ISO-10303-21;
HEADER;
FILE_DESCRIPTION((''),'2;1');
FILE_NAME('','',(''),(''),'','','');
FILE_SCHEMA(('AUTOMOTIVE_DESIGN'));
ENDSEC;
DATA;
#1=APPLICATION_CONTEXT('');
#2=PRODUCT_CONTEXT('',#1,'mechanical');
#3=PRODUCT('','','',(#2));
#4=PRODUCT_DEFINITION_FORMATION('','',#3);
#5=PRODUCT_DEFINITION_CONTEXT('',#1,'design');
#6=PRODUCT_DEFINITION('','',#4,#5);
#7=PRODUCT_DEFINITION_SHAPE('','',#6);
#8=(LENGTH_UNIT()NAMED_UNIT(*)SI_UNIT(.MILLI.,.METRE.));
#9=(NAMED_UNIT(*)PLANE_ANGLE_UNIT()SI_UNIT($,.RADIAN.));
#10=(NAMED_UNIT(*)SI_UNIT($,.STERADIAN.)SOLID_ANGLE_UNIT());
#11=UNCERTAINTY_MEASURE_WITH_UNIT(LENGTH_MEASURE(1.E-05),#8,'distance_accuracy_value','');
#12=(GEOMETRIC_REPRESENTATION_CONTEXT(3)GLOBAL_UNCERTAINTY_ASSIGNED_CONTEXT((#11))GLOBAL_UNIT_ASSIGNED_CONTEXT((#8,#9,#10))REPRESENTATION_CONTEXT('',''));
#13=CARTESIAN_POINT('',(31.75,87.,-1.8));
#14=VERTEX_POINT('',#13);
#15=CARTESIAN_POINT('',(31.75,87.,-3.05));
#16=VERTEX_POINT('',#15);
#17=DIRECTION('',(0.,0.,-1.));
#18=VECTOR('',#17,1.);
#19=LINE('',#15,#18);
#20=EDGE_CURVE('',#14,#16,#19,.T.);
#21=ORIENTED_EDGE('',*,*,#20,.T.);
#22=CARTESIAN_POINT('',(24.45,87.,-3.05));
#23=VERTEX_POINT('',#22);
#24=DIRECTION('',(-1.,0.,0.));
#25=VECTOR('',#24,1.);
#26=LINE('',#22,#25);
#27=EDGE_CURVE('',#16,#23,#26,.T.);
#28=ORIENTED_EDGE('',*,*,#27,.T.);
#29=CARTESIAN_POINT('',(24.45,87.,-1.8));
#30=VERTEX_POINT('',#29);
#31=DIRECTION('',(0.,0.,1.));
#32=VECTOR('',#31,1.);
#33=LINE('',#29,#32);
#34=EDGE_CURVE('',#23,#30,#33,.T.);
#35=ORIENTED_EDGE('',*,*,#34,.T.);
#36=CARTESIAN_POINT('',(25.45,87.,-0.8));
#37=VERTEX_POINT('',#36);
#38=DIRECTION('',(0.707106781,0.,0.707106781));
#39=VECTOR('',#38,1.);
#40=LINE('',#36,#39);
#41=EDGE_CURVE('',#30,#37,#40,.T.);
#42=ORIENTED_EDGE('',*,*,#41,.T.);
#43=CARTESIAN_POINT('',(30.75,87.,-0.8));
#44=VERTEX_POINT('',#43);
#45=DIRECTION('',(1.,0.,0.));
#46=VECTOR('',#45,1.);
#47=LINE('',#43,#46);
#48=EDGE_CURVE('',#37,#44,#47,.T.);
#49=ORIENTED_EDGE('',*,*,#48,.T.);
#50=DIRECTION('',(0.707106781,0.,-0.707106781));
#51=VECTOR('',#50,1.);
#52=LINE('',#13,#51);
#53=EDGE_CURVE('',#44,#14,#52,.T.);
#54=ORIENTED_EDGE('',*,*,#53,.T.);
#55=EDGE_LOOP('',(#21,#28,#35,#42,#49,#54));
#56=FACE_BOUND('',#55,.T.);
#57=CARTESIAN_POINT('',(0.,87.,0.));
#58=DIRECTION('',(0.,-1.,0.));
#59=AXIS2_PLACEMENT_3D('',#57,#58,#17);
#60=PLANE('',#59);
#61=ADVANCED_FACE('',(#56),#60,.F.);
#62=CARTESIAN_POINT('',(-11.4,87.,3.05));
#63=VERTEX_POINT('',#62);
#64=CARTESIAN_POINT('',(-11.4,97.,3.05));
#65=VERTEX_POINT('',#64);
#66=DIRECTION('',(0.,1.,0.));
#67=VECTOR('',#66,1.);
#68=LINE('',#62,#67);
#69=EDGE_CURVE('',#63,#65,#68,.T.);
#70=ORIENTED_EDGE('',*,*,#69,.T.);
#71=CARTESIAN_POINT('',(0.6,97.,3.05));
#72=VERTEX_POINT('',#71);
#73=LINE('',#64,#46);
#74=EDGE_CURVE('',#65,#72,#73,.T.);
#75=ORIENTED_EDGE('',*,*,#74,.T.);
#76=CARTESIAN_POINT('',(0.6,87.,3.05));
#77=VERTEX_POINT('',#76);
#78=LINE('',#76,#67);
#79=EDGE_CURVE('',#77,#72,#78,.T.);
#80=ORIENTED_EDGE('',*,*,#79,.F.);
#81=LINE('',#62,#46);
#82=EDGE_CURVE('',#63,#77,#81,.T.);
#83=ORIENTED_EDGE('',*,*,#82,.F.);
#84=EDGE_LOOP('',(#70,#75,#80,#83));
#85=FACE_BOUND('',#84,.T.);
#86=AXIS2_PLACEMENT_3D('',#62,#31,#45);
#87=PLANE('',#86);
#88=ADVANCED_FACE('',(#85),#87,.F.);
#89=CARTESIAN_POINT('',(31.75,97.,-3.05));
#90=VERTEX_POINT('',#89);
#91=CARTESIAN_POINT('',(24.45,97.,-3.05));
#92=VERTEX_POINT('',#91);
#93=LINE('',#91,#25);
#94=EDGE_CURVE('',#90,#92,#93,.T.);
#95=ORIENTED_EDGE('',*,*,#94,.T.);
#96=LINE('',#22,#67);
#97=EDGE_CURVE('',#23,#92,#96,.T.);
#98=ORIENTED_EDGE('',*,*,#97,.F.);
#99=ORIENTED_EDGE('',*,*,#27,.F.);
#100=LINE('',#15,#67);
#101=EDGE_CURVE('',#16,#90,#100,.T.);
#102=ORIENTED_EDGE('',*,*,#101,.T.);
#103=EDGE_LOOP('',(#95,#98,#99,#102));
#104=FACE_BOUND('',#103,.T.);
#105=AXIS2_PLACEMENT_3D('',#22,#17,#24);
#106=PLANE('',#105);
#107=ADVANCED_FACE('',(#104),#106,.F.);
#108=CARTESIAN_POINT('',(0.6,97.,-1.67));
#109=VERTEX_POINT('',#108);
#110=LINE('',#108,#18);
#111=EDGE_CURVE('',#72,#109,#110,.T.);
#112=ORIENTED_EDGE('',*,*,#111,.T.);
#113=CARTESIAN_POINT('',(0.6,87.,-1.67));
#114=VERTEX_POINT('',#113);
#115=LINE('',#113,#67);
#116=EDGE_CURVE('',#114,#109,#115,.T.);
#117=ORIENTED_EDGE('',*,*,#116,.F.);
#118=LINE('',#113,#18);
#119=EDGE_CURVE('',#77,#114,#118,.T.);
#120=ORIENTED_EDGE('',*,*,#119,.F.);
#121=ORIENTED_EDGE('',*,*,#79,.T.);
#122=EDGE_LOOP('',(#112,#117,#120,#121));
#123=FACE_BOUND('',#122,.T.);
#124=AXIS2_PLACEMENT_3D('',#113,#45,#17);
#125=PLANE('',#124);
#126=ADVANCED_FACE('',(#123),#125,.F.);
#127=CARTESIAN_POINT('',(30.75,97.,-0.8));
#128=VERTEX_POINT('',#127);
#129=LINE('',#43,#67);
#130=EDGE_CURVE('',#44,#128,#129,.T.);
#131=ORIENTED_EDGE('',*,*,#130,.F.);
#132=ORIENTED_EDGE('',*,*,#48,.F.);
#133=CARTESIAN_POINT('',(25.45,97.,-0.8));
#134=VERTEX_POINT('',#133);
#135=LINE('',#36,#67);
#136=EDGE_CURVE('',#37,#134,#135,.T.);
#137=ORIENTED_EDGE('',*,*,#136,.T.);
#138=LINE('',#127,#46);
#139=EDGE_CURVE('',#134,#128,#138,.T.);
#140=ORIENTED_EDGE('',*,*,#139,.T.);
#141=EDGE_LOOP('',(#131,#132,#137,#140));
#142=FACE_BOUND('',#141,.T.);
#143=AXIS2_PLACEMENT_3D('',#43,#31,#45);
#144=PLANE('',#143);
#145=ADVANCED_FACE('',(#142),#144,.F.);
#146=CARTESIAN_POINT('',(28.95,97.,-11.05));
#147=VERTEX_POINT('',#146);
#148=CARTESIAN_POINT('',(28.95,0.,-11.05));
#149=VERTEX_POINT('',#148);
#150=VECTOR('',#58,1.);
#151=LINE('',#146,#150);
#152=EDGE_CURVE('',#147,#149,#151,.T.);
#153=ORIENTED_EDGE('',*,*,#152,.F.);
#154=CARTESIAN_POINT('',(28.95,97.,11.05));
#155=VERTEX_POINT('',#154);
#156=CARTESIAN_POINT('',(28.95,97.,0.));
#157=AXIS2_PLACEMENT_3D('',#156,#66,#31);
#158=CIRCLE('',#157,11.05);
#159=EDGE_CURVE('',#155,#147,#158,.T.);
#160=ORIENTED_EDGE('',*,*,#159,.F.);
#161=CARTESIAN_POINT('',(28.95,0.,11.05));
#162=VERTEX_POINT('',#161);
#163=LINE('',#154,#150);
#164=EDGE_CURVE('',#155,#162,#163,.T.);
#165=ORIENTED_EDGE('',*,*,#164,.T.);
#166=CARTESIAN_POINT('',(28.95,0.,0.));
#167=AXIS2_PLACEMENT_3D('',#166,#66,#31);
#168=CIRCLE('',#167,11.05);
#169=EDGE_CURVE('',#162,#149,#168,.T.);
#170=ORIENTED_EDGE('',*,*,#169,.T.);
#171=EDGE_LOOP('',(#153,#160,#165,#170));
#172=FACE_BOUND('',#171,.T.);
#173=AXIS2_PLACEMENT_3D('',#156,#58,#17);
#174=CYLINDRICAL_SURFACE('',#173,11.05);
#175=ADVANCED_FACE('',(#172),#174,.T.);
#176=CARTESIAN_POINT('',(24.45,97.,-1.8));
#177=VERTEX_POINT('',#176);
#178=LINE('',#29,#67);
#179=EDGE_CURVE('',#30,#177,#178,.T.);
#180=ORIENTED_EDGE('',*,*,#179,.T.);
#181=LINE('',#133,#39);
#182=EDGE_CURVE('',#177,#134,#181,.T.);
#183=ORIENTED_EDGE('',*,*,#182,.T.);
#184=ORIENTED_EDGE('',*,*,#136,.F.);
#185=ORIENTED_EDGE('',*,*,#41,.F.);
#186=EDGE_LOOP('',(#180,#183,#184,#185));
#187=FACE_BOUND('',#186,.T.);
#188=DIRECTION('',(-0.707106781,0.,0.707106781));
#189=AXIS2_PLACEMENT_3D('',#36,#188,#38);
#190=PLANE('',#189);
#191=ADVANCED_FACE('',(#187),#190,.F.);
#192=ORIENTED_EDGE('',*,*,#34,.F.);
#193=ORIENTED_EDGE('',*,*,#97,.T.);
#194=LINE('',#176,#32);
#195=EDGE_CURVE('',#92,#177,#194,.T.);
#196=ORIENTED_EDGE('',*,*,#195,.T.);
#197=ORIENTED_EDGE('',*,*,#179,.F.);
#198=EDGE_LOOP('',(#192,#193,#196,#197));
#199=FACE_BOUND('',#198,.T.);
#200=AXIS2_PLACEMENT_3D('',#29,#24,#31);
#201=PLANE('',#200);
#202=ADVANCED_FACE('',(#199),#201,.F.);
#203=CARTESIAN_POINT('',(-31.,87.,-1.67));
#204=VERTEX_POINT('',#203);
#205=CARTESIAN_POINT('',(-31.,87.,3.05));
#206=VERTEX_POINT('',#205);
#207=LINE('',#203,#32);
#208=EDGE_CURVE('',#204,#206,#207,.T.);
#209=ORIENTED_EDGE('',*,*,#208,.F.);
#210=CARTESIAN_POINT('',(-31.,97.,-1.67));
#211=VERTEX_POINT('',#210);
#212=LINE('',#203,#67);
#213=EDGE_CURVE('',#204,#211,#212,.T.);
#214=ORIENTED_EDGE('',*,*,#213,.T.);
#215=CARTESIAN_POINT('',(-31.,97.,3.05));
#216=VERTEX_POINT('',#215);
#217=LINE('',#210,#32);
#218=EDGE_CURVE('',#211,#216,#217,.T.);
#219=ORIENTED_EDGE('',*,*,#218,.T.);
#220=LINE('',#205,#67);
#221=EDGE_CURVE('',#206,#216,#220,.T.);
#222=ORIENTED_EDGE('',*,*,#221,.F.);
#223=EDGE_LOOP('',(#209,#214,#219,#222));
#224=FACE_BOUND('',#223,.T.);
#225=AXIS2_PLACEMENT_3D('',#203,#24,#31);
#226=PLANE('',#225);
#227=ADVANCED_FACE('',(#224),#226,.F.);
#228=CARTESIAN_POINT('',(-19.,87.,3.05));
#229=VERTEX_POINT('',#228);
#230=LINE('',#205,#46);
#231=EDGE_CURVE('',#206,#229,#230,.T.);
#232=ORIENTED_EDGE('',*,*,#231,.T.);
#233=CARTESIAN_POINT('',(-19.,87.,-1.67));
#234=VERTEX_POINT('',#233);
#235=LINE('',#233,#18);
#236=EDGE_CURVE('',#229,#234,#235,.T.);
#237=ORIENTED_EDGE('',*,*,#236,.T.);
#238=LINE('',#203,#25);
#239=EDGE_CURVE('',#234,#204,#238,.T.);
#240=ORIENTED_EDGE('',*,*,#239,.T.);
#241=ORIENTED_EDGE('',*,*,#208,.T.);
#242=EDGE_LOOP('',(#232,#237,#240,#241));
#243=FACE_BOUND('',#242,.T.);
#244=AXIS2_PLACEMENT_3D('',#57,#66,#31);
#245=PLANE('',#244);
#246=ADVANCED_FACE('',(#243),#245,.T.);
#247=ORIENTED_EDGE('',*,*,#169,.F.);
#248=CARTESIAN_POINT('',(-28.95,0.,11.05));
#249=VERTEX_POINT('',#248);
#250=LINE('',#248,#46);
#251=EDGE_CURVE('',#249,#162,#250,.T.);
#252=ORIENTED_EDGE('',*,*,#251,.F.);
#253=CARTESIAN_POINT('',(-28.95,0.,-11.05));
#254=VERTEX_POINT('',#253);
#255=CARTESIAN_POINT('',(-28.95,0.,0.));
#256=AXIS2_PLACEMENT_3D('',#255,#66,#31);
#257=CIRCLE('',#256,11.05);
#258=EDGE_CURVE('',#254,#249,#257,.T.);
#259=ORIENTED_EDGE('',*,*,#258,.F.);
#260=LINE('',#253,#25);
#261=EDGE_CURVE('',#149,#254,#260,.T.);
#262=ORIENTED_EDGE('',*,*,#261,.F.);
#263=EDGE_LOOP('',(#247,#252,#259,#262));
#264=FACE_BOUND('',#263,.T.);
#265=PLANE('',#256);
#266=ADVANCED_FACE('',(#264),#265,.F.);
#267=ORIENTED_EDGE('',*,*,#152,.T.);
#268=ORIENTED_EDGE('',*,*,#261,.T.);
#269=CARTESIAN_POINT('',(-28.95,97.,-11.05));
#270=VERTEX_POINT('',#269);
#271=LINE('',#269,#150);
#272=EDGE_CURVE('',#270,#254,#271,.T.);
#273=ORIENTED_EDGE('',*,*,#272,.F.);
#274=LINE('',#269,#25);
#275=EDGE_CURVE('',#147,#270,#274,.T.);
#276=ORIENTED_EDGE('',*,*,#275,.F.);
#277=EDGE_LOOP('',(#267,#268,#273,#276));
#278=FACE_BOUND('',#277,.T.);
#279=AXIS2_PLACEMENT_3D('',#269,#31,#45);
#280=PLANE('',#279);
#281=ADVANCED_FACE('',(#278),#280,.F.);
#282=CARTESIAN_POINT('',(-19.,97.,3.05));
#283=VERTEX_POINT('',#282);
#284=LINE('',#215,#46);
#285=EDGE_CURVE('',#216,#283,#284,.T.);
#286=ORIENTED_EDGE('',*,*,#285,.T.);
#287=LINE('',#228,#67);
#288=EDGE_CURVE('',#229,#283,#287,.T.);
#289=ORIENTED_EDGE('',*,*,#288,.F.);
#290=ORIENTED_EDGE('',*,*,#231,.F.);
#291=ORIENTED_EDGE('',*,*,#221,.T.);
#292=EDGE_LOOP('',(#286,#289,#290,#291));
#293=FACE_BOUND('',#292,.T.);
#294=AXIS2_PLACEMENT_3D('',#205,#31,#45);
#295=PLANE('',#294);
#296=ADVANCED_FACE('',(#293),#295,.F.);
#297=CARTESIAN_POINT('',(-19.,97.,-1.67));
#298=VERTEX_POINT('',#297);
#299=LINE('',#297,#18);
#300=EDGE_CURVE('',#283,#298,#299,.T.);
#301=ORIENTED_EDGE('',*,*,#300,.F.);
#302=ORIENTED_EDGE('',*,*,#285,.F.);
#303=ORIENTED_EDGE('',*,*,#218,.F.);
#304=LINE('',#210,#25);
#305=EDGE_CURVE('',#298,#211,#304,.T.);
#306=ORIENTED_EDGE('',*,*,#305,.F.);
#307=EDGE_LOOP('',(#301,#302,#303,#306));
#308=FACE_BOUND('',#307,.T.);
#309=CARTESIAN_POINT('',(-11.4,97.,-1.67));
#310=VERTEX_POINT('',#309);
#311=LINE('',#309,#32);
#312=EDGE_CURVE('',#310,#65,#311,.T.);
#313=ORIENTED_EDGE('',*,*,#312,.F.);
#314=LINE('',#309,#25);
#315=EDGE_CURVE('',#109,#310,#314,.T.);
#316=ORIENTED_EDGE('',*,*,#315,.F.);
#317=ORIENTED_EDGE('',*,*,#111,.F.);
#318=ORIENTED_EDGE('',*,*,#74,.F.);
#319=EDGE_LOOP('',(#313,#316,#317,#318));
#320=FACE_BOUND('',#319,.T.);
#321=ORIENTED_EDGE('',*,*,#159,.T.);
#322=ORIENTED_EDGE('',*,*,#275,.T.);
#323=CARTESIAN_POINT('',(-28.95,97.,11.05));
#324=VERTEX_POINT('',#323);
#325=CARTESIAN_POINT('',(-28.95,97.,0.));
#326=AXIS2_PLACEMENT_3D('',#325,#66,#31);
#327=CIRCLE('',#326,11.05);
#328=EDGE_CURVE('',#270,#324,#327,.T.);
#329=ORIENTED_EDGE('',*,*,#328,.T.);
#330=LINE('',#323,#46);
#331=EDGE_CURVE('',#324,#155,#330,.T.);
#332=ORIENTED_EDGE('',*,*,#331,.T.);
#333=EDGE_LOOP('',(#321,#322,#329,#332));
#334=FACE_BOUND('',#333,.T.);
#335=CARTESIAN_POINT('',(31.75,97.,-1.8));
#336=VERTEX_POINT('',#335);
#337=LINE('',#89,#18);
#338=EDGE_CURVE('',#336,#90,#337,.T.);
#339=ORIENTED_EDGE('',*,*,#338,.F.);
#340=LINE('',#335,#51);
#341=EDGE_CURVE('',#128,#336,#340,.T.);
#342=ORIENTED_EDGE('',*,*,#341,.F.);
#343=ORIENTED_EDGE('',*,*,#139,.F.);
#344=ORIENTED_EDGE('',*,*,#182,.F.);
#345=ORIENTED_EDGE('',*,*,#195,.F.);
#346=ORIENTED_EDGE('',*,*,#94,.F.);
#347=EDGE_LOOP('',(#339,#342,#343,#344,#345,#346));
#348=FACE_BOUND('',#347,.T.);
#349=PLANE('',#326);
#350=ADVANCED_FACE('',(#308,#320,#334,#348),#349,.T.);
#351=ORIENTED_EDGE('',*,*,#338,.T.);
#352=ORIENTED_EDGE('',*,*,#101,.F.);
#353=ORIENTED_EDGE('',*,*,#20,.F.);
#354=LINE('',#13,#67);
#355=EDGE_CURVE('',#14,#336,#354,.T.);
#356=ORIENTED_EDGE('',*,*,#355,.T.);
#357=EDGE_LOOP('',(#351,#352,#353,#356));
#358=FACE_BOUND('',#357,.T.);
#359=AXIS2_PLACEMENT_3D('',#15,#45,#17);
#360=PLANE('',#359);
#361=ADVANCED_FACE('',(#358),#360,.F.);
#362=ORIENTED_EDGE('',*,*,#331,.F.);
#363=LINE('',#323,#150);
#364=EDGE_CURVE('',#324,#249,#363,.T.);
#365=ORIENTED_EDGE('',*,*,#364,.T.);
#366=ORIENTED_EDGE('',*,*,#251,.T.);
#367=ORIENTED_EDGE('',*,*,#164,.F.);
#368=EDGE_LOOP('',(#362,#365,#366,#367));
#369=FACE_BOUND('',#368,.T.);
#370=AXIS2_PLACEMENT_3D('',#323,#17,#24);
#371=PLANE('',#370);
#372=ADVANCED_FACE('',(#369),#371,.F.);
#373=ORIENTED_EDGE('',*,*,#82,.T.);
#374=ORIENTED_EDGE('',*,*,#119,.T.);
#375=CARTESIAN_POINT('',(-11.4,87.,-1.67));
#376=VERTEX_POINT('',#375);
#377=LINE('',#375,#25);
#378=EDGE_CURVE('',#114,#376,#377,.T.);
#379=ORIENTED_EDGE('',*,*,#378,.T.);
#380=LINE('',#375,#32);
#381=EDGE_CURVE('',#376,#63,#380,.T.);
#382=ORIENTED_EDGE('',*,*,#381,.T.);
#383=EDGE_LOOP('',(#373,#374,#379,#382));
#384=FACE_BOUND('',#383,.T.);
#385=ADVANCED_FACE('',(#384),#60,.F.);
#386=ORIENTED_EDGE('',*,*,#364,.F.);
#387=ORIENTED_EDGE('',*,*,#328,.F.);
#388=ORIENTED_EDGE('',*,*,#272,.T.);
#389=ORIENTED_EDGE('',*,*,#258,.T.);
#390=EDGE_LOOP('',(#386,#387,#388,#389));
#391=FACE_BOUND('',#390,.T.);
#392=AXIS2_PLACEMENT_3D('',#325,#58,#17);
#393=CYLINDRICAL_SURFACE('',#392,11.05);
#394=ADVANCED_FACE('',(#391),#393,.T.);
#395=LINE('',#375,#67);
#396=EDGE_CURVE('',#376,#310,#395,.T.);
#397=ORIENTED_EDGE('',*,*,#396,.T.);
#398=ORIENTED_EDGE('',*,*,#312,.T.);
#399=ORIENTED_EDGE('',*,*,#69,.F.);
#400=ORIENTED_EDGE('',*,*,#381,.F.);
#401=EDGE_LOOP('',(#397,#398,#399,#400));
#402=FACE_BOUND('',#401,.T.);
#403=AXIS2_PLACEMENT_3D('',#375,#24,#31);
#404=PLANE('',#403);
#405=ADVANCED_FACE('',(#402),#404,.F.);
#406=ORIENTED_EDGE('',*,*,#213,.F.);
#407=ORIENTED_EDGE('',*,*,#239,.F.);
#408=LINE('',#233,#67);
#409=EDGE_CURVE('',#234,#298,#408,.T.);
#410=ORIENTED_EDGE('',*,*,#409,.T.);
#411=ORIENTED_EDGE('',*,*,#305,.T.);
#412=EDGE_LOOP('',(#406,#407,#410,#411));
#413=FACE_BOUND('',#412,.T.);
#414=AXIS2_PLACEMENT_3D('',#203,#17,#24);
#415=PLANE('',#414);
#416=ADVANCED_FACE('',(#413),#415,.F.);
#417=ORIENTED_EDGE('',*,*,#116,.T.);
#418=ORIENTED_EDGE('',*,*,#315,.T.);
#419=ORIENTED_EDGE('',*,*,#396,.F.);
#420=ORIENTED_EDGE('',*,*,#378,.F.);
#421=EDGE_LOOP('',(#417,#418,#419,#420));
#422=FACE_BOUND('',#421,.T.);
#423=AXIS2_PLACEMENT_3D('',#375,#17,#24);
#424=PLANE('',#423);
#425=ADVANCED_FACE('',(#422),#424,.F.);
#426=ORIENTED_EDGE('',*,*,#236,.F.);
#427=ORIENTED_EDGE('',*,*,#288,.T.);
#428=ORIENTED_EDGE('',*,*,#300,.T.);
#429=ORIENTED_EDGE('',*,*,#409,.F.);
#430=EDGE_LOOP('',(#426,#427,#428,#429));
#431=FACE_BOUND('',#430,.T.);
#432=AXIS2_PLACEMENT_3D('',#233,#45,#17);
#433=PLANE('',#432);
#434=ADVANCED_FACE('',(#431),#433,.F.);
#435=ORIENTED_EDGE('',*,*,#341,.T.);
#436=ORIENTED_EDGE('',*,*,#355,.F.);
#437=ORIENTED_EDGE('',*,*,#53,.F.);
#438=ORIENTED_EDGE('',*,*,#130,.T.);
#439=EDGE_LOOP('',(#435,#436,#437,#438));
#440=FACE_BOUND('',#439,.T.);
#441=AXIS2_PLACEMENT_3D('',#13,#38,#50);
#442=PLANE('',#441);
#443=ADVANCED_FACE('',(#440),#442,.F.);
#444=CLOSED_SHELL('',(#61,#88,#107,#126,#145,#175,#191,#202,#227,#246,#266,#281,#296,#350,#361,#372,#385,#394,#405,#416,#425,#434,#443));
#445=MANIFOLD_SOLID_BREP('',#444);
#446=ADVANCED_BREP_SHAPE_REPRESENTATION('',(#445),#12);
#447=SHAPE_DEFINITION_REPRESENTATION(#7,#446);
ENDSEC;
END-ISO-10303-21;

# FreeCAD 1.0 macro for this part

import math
import FreeCAD as App
import Part
import Sketcher
Q = App.Units.Quantity


def add_polygon(sketch, points):
    """Adds a closed chain of lines whose ends are joined by coincident constraints."""
    first, n = sketch.GeometryCount, len(points)
    for a, b in zip(points, points[1:] + points[:1]):
        sketch.addGeometry(Part.LineSegment(App.Vector(*a, 0), App.Vector(*b, 0)), False)
    for i in range(n):
        sketch.addConstraint(Sketcher.Constraint("Coincident", first + i, 2, first + (i + 1) % n, 1))

doc = App.newDocument("Part")
body = doc.addObject("PartDesign::Body", "Body")

sketch1 = doc.addObject("Sketcher::SketchObject", "Sketch")
body.addObject(sketch1)
sketch1.AttachmentSupport = (doc.XZ_Plane, [""])
sketch1.MapMode = "FlatFace"
sketch1.addGeometry([
    Part.LineSegment(App.Vector(29, -11, 0), App.Vector(-29, -11, 0)),
    Part.ArcOfCircle(Part.Circle(App.Vector(-29, 0, 0), App.Vector(0, 0, 1), 11), math.radians(90), math.radians(270)),
    Part.LineSegment(App.Vector(-29, 11, 0), App.Vector(29, 11, 0)),
    Part.ArcOfCircle(Part.Circle(App.Vector(29, 0, 0), App.Vector(0, 0, 1), 11), math.radians(-90), math.radians(90)),
], False)
sketch1.addConstraint([
    Sketcher.Constraint("Tangent", 0, 2, 1, 2),
    Sketcher.Constraint("Tangent", 1, 1, 2, 1),
    Sketcher.Constraint("Tangent", 2, 2, 3, 2),
    Sketcher.Constraint("Tangent", 3, 1, 0, 1),
    Sketcher.Constraint("Horizontal", 0),
    Sketcher.Constraint("Horizontal", 2),
    Sketcher.Constraint("Symmetric", 1, 3, 3, 3, -1, 1),
    Sketcher.Constraint("Radius", 1, Q("11.05 mm")),
    Sketcher.Constraint("DistanceX", 0, 2, 0, 1, Q("57.9 mm")),
])
pad1 = doc.addObject("PartDesign::Pad", "Pad")
body.addObject(pad1)
pad1.Profile = sketch1
pad1.Length = 97
pad1.Reversed = True

sketch2 = doc.addObject("Sketcher::SketchObject", "Sketch001")
body.addObject(sketch2)
sketch2.AttachmentSupport = (doc.XZ_Plane, [""])
sketch2.MapMode = "FlatFace"
sketch2.AttachmentOffset = App.Placement(App.Vector(0, 0, -97), App.Rotation())
add_polygon(sketch2, [(-31, -1.7), (-31, 3), (-19, 3), (-19, -1.7)])
add_polygon(sketch2, [(-11.4, -1.7), (-11.4, 3), (0.6, 3), (0.6, -1.7)])
add_polygon(sketch2, [(24.4, -1.8), (25.4, -0.8), (30.8, -0.8), (31.8, -1.8), (31.8, -3), (24.4, -3)])
sketch2.addConstraint([
    Sketcher.Constraint("Vertical", 0),
    Sketcher.Constraint("Horizontal", 1),
    Sketcher.Constraint("Vertical", 2),
    Sketcher.Constraint("Horizontal", 3),
    Sketcher.Constraint("Vertical", 4),
    Sketcher.Constraint("Horizontal", 5),
    Sketcher.Constraint("Vertical", 6),
    Sketcher.Constraint("Horizontal", 7),
    Sketcher.Constraint("Horizontal", 9),
    Sketcher.Constraint("Vertical", 11),
    Sketcher.Constraint("Horizontal", 12),
    Sketcher.Constraint("Vertical", 13),
    Sketcher.Constraint("Perpendicular", 8, 10),
    Sketcher.Constraint("Horizontal", 1, 2, 4, 2),
    Sketcher.Constraint("Horizontal", 3, 2, 6, 2),
    Sketcher.Constraint("Horizontal", 10, 2, 13, 2),
    Sketcher.Constraint("Equal", 3, 5),
    Sketcher.Constraint("Equal", 8, 10),
    Sketcher.Constraint("DistanceX", 1, 1, 1, 2, Q("12 mm")),
    Sketcher.Constraint("DistanceX", 9, 1, 9, 2, Q("5.3 mm")),
    Sketcher.Constraint("DistanceX", 12, 2, 12, 1, Q("7.3 mm")),
    Sketcher.Constraint("DistanceX", 0, 2, -1, 1, Q("31 mm")),
    Sketcher.Constraint("DistanceY", 0, 1, 0, 2, Q("4.72 mm")),
    Sketcher.Constraint("DistanceY", 11, 2, 11, 1, Q("1.25 mm")),
    Sketcher.Constraint("DistanceX", 4, 2, -1, 1, Q("11.4 mm")),
    Sketcher.Constraint("DistanceY", 8, 2, -1, 1, Q("0.8 mm")),
    Sketcher.Constraint("DistanceY", 11, 2, 5, 2, Q("6.1 mm")),
    Sketcher.Constraint("DistanceX", -1, 1, 8, 2, Q("25.45 mm")),
])
pocket1 = doc.addObject("PartDesign::Pocket", "Pocket")
body.addObject(pocket1)
pocket1.Profile = sketch2
pocket1.Length = 10
pocket1.Reversed = True

doc.recompute()
